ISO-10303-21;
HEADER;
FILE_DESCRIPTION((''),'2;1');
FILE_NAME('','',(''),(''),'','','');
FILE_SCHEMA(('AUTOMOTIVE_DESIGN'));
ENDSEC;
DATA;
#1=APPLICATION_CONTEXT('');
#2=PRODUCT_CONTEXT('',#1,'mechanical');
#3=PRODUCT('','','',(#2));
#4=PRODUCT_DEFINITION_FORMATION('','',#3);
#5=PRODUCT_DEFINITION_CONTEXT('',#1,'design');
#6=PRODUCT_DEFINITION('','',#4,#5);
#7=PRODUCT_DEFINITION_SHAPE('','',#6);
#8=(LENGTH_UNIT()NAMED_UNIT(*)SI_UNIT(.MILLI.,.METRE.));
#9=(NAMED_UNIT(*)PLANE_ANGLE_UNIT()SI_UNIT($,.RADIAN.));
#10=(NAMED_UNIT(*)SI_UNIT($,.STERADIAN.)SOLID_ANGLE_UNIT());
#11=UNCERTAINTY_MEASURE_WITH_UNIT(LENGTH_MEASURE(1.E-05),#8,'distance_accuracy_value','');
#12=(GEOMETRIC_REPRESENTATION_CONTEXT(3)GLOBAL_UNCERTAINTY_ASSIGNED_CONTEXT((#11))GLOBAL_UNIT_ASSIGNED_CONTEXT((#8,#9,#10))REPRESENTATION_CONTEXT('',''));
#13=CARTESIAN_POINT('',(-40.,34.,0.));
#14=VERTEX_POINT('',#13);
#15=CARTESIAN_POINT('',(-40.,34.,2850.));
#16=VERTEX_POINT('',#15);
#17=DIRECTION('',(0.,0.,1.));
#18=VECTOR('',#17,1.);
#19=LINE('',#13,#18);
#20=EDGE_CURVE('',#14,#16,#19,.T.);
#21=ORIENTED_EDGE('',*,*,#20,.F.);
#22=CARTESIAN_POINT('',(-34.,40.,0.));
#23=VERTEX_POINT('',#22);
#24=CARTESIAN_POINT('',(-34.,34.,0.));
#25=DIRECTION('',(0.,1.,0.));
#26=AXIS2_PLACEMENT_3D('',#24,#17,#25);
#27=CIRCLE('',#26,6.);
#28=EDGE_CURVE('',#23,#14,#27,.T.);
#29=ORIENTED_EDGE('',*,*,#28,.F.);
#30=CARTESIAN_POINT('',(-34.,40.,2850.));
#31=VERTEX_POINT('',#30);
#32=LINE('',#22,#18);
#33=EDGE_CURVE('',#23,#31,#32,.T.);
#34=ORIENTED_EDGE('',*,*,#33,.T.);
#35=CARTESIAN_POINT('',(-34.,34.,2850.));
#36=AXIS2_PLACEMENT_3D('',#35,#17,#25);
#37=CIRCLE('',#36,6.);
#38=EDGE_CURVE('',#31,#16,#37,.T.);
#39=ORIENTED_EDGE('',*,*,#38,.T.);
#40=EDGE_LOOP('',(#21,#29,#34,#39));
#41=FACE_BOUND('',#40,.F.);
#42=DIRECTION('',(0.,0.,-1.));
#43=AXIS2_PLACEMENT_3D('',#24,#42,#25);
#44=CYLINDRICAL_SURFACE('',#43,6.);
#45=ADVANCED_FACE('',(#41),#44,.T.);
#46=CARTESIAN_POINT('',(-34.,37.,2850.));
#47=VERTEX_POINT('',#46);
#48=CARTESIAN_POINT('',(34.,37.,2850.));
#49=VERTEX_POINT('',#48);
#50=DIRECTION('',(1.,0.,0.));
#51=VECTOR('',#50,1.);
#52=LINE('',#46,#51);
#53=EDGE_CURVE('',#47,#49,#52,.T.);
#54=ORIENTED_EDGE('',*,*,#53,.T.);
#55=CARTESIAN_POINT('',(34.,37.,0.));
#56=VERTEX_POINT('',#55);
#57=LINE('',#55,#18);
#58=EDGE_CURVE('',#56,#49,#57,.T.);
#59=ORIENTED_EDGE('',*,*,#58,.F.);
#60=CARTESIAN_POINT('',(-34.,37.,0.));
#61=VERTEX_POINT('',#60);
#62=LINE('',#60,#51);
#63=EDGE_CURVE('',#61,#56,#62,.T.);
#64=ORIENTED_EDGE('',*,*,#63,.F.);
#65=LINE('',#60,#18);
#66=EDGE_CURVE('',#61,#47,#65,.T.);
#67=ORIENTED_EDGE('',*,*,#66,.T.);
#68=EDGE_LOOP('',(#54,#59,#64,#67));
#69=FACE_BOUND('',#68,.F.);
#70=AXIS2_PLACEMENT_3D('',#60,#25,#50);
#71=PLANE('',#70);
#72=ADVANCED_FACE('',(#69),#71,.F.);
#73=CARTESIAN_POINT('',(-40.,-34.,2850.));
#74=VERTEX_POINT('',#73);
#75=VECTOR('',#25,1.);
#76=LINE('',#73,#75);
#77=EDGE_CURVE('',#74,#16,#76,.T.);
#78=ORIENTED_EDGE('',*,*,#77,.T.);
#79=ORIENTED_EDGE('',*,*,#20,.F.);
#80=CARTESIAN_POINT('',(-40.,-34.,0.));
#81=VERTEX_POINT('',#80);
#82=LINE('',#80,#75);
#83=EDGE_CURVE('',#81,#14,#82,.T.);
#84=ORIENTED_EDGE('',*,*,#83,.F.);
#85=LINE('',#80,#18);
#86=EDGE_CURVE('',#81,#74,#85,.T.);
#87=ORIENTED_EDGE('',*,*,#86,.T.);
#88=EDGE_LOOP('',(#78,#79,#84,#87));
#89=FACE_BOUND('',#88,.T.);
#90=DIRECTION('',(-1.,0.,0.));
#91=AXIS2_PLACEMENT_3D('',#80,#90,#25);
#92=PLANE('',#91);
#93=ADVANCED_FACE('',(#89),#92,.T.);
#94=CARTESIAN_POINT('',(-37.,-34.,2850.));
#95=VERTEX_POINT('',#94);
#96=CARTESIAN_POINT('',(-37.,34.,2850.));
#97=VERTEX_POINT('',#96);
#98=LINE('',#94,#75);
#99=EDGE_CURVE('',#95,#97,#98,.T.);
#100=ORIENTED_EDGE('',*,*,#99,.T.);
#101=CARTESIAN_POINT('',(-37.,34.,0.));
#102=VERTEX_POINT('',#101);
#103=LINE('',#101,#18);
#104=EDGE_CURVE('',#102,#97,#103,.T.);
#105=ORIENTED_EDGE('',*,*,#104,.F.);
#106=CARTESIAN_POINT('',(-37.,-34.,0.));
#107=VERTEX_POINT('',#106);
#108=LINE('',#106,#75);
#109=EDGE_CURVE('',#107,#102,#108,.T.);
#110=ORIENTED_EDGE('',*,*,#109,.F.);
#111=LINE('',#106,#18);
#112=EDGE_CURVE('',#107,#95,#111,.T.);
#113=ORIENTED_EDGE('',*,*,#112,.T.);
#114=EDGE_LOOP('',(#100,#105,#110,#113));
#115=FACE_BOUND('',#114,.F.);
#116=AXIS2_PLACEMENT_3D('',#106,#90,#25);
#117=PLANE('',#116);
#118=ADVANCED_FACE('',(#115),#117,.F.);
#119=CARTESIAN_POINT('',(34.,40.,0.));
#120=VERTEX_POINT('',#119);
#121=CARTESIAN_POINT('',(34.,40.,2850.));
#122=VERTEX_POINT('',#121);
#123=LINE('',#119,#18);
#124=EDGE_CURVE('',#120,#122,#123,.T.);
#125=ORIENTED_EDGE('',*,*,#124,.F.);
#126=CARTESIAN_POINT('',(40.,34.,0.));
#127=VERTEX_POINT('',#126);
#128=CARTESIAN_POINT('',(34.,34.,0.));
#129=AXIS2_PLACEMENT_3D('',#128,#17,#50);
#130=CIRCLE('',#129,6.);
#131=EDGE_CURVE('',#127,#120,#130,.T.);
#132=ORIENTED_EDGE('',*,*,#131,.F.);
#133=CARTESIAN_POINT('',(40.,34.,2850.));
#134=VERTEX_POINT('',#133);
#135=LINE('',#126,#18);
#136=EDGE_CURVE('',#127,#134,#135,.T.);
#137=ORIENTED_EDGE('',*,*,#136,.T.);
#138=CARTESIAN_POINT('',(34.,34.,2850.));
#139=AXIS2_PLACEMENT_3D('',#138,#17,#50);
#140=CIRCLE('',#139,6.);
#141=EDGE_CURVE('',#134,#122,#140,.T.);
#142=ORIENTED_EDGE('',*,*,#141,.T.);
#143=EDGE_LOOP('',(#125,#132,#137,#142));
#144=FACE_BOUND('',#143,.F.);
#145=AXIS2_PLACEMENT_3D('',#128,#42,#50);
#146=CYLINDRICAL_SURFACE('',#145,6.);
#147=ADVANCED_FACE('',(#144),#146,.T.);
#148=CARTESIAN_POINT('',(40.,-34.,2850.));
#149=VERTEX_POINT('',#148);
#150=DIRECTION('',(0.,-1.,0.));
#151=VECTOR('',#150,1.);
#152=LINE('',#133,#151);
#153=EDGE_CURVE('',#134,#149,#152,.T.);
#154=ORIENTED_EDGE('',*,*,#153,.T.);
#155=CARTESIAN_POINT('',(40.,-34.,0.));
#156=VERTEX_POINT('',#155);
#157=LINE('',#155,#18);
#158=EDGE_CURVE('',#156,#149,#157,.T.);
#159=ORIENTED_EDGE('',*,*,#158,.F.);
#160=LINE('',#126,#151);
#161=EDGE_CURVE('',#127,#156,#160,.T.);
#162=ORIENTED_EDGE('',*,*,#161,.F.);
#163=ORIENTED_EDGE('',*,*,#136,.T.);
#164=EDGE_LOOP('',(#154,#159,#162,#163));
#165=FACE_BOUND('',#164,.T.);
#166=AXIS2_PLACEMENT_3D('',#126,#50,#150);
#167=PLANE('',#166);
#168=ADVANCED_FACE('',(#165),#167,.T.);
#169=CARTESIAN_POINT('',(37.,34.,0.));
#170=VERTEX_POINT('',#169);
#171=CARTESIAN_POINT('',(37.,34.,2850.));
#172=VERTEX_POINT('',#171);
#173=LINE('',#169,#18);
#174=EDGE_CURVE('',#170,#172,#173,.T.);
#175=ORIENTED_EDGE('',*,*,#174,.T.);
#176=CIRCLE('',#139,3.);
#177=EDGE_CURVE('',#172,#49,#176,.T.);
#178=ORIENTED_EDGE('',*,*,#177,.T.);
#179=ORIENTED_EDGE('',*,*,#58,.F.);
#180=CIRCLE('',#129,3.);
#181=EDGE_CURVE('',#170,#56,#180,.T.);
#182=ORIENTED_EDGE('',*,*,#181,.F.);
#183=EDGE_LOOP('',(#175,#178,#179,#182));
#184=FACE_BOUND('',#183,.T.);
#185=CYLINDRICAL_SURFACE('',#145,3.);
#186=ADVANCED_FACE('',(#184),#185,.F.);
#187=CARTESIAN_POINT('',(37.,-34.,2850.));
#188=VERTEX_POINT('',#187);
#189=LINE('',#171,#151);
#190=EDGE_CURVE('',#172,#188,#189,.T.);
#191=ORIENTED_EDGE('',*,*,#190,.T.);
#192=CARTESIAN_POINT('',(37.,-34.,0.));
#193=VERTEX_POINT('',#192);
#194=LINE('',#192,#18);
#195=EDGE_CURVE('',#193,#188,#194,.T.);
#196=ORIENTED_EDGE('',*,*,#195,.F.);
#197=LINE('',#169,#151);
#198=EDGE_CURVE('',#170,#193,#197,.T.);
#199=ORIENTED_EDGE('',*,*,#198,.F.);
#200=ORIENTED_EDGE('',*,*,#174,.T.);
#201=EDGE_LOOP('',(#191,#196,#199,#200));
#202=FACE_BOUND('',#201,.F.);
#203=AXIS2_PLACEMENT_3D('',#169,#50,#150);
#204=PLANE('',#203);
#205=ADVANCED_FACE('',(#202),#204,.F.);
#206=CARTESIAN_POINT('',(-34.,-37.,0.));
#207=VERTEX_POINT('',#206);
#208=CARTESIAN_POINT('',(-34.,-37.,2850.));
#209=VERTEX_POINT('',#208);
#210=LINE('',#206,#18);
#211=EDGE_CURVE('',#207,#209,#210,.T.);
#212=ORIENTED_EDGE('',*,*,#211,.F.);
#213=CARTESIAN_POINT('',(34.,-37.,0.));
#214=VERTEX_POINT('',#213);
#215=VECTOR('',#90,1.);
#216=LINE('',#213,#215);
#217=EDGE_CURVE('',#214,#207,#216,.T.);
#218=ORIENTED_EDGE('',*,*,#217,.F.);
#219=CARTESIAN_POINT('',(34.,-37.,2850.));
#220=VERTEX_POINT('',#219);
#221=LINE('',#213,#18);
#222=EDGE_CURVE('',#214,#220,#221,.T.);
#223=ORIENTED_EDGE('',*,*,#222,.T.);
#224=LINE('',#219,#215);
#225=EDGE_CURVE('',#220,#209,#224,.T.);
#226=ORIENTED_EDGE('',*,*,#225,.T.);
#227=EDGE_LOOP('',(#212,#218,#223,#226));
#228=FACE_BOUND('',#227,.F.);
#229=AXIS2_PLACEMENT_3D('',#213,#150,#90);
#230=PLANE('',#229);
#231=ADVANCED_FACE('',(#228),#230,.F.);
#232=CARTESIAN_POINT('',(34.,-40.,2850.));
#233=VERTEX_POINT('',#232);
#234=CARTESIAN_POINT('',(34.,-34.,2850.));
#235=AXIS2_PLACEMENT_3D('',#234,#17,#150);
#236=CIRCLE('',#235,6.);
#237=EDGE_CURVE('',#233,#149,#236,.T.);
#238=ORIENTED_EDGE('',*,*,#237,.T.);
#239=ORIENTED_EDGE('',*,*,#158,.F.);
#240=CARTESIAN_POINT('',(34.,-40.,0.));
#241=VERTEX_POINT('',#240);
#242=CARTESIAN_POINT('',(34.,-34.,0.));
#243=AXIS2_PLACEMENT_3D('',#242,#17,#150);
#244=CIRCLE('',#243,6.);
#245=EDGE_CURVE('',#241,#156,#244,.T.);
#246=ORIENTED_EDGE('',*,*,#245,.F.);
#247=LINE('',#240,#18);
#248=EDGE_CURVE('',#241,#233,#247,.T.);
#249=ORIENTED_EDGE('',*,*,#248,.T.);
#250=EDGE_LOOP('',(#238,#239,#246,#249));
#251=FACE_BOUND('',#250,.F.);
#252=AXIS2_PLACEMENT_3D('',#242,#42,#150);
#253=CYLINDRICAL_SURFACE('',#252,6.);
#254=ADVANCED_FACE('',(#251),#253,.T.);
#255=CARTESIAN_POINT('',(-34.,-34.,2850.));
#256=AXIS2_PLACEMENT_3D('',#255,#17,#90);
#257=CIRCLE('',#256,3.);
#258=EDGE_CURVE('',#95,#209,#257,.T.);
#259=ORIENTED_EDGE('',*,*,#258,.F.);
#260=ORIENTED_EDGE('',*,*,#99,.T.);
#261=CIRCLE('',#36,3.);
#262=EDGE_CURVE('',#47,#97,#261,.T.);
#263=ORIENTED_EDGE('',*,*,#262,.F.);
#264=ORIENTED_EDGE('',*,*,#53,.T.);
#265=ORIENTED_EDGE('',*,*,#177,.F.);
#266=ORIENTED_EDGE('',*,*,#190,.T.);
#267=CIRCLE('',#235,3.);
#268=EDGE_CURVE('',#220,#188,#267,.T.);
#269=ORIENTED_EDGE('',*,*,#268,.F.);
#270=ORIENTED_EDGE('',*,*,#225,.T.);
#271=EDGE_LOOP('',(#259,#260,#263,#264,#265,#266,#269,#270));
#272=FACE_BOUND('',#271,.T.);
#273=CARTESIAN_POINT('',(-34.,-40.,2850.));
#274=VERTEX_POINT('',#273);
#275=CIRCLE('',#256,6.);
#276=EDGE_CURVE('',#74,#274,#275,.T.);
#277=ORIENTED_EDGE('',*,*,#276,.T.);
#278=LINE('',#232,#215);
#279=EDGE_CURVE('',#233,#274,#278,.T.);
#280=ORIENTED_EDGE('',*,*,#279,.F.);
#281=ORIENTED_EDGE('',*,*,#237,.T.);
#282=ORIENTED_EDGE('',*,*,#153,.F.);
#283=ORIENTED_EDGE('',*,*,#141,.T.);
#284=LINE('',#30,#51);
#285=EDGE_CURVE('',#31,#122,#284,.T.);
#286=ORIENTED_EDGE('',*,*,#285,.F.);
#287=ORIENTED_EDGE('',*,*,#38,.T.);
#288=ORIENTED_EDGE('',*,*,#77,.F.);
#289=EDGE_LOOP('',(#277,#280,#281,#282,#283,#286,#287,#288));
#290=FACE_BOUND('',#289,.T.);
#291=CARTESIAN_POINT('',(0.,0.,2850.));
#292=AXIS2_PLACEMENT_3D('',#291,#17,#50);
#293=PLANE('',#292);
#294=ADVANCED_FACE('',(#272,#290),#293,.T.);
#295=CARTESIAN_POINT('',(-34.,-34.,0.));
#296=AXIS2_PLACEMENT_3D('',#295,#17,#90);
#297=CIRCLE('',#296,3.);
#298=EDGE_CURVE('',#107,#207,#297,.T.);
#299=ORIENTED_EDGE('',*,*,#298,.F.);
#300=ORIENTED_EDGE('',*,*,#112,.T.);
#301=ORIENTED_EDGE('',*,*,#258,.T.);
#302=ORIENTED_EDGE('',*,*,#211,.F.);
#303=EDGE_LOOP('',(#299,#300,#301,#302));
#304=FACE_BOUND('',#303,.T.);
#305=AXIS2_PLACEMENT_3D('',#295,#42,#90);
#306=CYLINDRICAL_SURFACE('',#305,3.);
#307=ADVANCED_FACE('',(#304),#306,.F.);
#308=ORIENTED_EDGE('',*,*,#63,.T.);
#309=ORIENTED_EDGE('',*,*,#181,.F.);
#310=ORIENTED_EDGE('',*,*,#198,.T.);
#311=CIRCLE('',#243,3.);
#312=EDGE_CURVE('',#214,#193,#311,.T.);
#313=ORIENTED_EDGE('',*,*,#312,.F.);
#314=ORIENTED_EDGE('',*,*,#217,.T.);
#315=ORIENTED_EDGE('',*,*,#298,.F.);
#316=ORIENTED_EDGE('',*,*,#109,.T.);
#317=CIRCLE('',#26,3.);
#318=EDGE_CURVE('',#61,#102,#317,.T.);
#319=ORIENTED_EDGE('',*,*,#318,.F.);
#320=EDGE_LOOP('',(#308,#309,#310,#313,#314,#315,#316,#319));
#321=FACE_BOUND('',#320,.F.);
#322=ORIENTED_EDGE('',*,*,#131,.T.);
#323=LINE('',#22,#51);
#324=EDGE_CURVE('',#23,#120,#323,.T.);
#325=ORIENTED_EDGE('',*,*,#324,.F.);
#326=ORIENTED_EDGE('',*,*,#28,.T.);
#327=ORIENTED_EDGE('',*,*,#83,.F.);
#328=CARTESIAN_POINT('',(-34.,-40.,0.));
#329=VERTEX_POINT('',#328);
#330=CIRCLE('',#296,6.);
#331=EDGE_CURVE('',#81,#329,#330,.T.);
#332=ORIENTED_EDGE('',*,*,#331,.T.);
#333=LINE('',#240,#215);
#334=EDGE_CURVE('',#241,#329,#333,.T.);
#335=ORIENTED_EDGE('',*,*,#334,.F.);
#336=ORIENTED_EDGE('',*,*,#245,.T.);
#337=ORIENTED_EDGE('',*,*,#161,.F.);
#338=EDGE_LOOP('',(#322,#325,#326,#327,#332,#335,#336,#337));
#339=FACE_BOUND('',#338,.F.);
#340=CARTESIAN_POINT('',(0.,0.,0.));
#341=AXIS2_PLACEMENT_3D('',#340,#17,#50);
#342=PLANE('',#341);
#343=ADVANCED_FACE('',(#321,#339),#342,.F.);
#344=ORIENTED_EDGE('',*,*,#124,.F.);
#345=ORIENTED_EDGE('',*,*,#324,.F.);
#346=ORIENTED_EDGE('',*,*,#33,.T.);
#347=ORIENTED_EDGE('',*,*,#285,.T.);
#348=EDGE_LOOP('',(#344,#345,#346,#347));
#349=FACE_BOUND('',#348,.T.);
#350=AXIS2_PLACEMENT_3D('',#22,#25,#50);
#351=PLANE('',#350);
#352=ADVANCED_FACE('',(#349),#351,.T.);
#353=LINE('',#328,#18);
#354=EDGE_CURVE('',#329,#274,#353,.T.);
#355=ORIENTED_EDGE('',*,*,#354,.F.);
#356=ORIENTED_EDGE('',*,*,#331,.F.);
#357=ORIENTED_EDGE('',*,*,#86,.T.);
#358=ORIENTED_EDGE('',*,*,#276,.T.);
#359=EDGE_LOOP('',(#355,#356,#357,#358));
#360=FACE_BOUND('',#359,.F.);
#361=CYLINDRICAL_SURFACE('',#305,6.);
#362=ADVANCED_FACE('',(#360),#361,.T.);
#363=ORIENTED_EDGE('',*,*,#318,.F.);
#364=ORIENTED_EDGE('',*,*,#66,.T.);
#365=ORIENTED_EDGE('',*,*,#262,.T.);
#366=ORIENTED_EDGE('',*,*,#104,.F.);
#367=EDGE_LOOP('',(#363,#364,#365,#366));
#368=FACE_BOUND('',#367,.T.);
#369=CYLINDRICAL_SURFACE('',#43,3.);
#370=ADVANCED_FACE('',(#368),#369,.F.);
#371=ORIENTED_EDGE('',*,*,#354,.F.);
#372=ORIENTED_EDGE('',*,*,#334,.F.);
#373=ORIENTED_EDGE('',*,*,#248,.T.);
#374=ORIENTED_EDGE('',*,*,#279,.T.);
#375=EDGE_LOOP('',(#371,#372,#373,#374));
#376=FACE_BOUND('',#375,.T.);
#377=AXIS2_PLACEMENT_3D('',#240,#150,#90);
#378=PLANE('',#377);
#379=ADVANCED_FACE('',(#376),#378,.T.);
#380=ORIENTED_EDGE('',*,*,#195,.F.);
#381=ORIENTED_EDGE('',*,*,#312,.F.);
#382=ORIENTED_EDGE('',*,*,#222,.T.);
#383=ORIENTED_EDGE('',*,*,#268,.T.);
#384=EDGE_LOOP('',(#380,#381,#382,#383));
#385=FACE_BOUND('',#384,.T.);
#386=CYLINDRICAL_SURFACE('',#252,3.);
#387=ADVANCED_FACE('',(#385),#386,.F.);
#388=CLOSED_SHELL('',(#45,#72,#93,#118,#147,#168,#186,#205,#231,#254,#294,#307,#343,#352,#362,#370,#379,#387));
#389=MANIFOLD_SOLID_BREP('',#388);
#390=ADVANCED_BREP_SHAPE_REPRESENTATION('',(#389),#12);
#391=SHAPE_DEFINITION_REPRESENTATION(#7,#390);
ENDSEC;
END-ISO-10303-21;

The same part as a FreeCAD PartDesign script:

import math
import FreeCAD as App
import Part
import Sketcher
from FreeCAD import Vector

doc = App.newDocument("Part")
body = doc.addObject("PartDesign::Body", "Body")

sketch1 = doc.addObject("Sketcher::SketchObject", "Sketch")
body.addObject(sketch1)
sketch1.AttachmentSupport = (doc.XY_Plane, [""])
sketch1.MapMode = "FlatFace"
sketch1.addGeometry([
    Part.LineSegment(Vector(-40, 34, 0), Vector(-40, -34, 0)),
    Part.ArcOfCircle(Part.Circle(Vector(-34, -34, 0), Vector(0, 0, 1), 6), math.radians(180), math.radians(270)),
    Part.LineSegment(Vector(-34, -40, 0), Vector(34, -40, 0)),
    Part.ArcOfCircle(Part.Circle(Vector(34, -34, 0), Vector(0, 0, 1), 6), math.radians(-90), math.radians(0)),
    Part.LineSegment(Vector(40, -34, 0), Vector(40, 34, 0)),
    Part.ArcOfCircle(Part.Circle(Vector(34, 34, 0), Vector(0, 0, 1), 6), math.radians(0), math.radians(90)),
    Part.LineSegment(Vector(34, 40, 0), Vector(-34, 40, 0)),
    Part.ArcOfCircle(Part.Circle(Vector(-34, 34, 0), Vector(0, 0, 1), 6), math.radians(90), math.radians(180)),
    Part.ArcOfCircle(Part.Circle(Vector(-34, 34, 0), Vector(0, 0, 1), 3), math.radians(90), math.radians(180)),
    Part.LineSegment(Vector(-34, 37, 0), Vector(34, 37, 0)),
    Part.ArcOfCircle(Part.Circle(Vector(34, 34, 0), Vector(0, 0, 1), 3), math.radians(0), math.radians(90)),
    Part.LineSegment(Vector(37, 34, 0), Vector(37, -34, 0)),
    Part.ArcOfCircle(Part.Circle(Vector(34, -34, 0), Vector(0, 0, 1), 3), math.radians(-90), math.radians(0)),
    Part.LineSegment(Vector(34, -37, 0), Vector(-34, -37, 0)),
    Part.ArcOfCircle(Part.Circle(Vector(-34, -34, 0), Vector(0, 0, 1), 3), math.radians(180), math.radians(270)),
    Part.LineSegment(Vector(-37, -34, 0), Vector(-37, 34, 0)),
], False)
sketch1.addConstraint([
    Sketcher.Constraint("Tangent", 0, 2, 1, 1),
    Sketcher.Constraint("Tangent", 1, 2, 2, 1),
    Sketcher.Constraint("Tangent", 2, 2, 3, 1),
    Sketcher.Constraint("Tangent", 3, 2, 4, 1),
    Sketcher.Constraint("Tangent", 4, 2, 5, 1),
    Sketcher.Constraint("Tangent", 5, 2, 6, 1),
    Sketcher.Constraint("Tangent", 6, 2, 7, 1),
    Sketcher.Constraint("Tangent", 7, 2, 0, 1),
    Sketcher.Constraint("Tangent", 8, 1, 9, 1),
    Sketcher.Constraint("Tangent", 9, 2, 10, 2),
    Sketcher.Constraint("Tangent", 10, 1, 11, 1),
    Sketcher.Constraint("Tangent", 11, 2, 12, 2),
    Sketcher.Constraint("Tangent", 12, 1, 13, 1),
    Sketcher.Constraint("Tangent", 13, 2, 14, 2),
    Sketcher.Constraint("Tangent", 14, 1, 15, 1),
    Sketcher.Constraint("Tangent", 15, 2, 8, 2),
    Sketcher.Constraint("Vertical", 0),
    Sketcher.Constraint("Horizontal", 2),
    Sketcher.Constraint("Vertical", 4),
    Sketcher.Constraint("Horizontal", 6),
    Sketcher.Constraint("Horizontal", 9),
    Sketcher.Constraint("Vertical", 11),
    Sketcher.Constraint("Horizontal", 13),
    Sketcher.Constraint("Vertical", 15),
    Sketcher.Constraint("Coincident", 8, 3, 7, 3),
    Sketcher.Constraint("Coincident", 10, 3, 5, 3),
    Sketcher.Constraint("Coincident", 12, 3, 3, 3),
    Sketcher.Constraint("Equal", 1, 3),
    Sketcher.Constraint("Equal", 3, 5),
    Sketcher.Constraint("Equal", 5, 7),
    Sketcher.Constraint("Equal", 12, 14),
    Sketcher.Constraint("Symmetric", 1, 3, 5, 3, -1, 1),
    Sketcher.Constraint("Equal", 13, 0),
    Sketcher.Constraint("Radius", 1, 6.0),
    Sketcher.Constraint("Radius", 8, 3.0),
    Sketcher.Constraint("DistanceX", 0, 2, -1, 1, 40.0),
])
pad1 = doc.addObject("PartDesign::Pad", "Pad")
body.addObject(pad1)
pad1.Profile = sketch1
pad1.Length = 2850

doc.recompute()
